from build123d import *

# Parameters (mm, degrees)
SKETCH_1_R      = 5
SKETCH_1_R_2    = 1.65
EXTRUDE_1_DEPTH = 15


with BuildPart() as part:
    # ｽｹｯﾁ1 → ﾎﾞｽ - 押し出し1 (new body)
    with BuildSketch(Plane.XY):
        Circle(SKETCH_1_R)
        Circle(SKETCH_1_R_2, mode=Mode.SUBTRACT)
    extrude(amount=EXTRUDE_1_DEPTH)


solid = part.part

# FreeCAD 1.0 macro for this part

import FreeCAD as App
import Part
import Sketcher

V = App.Vector
Q = App.Units.Quantity

doc = App.newDocument("Part")
body = doc.addObject("PartDesign::Body", "Body")

# Sketch on XY plane
sketch1 = doc.addObject("Sketcher::SketchObject", "Sketch")
body.addObject(sketch1)
sketch1.AttachmentSupport = (doc.XY_Plane, [""])
sketch1.MapMode = "FlatFace"
sketch1.addGeometry([
    Part.Circle(V(0, 0, 0), V(0, 0, 1), 5),
    Part.Circle(V(0, 0, 0), V(0, 0, 1), 1.6),
], False)
sketch1.addConstraint([
    Sketcher.Constraint("Coincident", 0, 3, -1, 1),
    Sketcher.Constraint("Coincident", 1, 3, -1, 1),
    Sketcher.Constraint("Diameter", 0, Q("10 mm")),
    Sketcher.Constraint("Diameter", 1, Q("3.3 mm")),
])
pad1 = doc.addObject("PartDesign::Pad", "Pad")
body.addObject(pad1)
pad1.Profile = sketch1
pad1.Length = 15

doc.recompute()
